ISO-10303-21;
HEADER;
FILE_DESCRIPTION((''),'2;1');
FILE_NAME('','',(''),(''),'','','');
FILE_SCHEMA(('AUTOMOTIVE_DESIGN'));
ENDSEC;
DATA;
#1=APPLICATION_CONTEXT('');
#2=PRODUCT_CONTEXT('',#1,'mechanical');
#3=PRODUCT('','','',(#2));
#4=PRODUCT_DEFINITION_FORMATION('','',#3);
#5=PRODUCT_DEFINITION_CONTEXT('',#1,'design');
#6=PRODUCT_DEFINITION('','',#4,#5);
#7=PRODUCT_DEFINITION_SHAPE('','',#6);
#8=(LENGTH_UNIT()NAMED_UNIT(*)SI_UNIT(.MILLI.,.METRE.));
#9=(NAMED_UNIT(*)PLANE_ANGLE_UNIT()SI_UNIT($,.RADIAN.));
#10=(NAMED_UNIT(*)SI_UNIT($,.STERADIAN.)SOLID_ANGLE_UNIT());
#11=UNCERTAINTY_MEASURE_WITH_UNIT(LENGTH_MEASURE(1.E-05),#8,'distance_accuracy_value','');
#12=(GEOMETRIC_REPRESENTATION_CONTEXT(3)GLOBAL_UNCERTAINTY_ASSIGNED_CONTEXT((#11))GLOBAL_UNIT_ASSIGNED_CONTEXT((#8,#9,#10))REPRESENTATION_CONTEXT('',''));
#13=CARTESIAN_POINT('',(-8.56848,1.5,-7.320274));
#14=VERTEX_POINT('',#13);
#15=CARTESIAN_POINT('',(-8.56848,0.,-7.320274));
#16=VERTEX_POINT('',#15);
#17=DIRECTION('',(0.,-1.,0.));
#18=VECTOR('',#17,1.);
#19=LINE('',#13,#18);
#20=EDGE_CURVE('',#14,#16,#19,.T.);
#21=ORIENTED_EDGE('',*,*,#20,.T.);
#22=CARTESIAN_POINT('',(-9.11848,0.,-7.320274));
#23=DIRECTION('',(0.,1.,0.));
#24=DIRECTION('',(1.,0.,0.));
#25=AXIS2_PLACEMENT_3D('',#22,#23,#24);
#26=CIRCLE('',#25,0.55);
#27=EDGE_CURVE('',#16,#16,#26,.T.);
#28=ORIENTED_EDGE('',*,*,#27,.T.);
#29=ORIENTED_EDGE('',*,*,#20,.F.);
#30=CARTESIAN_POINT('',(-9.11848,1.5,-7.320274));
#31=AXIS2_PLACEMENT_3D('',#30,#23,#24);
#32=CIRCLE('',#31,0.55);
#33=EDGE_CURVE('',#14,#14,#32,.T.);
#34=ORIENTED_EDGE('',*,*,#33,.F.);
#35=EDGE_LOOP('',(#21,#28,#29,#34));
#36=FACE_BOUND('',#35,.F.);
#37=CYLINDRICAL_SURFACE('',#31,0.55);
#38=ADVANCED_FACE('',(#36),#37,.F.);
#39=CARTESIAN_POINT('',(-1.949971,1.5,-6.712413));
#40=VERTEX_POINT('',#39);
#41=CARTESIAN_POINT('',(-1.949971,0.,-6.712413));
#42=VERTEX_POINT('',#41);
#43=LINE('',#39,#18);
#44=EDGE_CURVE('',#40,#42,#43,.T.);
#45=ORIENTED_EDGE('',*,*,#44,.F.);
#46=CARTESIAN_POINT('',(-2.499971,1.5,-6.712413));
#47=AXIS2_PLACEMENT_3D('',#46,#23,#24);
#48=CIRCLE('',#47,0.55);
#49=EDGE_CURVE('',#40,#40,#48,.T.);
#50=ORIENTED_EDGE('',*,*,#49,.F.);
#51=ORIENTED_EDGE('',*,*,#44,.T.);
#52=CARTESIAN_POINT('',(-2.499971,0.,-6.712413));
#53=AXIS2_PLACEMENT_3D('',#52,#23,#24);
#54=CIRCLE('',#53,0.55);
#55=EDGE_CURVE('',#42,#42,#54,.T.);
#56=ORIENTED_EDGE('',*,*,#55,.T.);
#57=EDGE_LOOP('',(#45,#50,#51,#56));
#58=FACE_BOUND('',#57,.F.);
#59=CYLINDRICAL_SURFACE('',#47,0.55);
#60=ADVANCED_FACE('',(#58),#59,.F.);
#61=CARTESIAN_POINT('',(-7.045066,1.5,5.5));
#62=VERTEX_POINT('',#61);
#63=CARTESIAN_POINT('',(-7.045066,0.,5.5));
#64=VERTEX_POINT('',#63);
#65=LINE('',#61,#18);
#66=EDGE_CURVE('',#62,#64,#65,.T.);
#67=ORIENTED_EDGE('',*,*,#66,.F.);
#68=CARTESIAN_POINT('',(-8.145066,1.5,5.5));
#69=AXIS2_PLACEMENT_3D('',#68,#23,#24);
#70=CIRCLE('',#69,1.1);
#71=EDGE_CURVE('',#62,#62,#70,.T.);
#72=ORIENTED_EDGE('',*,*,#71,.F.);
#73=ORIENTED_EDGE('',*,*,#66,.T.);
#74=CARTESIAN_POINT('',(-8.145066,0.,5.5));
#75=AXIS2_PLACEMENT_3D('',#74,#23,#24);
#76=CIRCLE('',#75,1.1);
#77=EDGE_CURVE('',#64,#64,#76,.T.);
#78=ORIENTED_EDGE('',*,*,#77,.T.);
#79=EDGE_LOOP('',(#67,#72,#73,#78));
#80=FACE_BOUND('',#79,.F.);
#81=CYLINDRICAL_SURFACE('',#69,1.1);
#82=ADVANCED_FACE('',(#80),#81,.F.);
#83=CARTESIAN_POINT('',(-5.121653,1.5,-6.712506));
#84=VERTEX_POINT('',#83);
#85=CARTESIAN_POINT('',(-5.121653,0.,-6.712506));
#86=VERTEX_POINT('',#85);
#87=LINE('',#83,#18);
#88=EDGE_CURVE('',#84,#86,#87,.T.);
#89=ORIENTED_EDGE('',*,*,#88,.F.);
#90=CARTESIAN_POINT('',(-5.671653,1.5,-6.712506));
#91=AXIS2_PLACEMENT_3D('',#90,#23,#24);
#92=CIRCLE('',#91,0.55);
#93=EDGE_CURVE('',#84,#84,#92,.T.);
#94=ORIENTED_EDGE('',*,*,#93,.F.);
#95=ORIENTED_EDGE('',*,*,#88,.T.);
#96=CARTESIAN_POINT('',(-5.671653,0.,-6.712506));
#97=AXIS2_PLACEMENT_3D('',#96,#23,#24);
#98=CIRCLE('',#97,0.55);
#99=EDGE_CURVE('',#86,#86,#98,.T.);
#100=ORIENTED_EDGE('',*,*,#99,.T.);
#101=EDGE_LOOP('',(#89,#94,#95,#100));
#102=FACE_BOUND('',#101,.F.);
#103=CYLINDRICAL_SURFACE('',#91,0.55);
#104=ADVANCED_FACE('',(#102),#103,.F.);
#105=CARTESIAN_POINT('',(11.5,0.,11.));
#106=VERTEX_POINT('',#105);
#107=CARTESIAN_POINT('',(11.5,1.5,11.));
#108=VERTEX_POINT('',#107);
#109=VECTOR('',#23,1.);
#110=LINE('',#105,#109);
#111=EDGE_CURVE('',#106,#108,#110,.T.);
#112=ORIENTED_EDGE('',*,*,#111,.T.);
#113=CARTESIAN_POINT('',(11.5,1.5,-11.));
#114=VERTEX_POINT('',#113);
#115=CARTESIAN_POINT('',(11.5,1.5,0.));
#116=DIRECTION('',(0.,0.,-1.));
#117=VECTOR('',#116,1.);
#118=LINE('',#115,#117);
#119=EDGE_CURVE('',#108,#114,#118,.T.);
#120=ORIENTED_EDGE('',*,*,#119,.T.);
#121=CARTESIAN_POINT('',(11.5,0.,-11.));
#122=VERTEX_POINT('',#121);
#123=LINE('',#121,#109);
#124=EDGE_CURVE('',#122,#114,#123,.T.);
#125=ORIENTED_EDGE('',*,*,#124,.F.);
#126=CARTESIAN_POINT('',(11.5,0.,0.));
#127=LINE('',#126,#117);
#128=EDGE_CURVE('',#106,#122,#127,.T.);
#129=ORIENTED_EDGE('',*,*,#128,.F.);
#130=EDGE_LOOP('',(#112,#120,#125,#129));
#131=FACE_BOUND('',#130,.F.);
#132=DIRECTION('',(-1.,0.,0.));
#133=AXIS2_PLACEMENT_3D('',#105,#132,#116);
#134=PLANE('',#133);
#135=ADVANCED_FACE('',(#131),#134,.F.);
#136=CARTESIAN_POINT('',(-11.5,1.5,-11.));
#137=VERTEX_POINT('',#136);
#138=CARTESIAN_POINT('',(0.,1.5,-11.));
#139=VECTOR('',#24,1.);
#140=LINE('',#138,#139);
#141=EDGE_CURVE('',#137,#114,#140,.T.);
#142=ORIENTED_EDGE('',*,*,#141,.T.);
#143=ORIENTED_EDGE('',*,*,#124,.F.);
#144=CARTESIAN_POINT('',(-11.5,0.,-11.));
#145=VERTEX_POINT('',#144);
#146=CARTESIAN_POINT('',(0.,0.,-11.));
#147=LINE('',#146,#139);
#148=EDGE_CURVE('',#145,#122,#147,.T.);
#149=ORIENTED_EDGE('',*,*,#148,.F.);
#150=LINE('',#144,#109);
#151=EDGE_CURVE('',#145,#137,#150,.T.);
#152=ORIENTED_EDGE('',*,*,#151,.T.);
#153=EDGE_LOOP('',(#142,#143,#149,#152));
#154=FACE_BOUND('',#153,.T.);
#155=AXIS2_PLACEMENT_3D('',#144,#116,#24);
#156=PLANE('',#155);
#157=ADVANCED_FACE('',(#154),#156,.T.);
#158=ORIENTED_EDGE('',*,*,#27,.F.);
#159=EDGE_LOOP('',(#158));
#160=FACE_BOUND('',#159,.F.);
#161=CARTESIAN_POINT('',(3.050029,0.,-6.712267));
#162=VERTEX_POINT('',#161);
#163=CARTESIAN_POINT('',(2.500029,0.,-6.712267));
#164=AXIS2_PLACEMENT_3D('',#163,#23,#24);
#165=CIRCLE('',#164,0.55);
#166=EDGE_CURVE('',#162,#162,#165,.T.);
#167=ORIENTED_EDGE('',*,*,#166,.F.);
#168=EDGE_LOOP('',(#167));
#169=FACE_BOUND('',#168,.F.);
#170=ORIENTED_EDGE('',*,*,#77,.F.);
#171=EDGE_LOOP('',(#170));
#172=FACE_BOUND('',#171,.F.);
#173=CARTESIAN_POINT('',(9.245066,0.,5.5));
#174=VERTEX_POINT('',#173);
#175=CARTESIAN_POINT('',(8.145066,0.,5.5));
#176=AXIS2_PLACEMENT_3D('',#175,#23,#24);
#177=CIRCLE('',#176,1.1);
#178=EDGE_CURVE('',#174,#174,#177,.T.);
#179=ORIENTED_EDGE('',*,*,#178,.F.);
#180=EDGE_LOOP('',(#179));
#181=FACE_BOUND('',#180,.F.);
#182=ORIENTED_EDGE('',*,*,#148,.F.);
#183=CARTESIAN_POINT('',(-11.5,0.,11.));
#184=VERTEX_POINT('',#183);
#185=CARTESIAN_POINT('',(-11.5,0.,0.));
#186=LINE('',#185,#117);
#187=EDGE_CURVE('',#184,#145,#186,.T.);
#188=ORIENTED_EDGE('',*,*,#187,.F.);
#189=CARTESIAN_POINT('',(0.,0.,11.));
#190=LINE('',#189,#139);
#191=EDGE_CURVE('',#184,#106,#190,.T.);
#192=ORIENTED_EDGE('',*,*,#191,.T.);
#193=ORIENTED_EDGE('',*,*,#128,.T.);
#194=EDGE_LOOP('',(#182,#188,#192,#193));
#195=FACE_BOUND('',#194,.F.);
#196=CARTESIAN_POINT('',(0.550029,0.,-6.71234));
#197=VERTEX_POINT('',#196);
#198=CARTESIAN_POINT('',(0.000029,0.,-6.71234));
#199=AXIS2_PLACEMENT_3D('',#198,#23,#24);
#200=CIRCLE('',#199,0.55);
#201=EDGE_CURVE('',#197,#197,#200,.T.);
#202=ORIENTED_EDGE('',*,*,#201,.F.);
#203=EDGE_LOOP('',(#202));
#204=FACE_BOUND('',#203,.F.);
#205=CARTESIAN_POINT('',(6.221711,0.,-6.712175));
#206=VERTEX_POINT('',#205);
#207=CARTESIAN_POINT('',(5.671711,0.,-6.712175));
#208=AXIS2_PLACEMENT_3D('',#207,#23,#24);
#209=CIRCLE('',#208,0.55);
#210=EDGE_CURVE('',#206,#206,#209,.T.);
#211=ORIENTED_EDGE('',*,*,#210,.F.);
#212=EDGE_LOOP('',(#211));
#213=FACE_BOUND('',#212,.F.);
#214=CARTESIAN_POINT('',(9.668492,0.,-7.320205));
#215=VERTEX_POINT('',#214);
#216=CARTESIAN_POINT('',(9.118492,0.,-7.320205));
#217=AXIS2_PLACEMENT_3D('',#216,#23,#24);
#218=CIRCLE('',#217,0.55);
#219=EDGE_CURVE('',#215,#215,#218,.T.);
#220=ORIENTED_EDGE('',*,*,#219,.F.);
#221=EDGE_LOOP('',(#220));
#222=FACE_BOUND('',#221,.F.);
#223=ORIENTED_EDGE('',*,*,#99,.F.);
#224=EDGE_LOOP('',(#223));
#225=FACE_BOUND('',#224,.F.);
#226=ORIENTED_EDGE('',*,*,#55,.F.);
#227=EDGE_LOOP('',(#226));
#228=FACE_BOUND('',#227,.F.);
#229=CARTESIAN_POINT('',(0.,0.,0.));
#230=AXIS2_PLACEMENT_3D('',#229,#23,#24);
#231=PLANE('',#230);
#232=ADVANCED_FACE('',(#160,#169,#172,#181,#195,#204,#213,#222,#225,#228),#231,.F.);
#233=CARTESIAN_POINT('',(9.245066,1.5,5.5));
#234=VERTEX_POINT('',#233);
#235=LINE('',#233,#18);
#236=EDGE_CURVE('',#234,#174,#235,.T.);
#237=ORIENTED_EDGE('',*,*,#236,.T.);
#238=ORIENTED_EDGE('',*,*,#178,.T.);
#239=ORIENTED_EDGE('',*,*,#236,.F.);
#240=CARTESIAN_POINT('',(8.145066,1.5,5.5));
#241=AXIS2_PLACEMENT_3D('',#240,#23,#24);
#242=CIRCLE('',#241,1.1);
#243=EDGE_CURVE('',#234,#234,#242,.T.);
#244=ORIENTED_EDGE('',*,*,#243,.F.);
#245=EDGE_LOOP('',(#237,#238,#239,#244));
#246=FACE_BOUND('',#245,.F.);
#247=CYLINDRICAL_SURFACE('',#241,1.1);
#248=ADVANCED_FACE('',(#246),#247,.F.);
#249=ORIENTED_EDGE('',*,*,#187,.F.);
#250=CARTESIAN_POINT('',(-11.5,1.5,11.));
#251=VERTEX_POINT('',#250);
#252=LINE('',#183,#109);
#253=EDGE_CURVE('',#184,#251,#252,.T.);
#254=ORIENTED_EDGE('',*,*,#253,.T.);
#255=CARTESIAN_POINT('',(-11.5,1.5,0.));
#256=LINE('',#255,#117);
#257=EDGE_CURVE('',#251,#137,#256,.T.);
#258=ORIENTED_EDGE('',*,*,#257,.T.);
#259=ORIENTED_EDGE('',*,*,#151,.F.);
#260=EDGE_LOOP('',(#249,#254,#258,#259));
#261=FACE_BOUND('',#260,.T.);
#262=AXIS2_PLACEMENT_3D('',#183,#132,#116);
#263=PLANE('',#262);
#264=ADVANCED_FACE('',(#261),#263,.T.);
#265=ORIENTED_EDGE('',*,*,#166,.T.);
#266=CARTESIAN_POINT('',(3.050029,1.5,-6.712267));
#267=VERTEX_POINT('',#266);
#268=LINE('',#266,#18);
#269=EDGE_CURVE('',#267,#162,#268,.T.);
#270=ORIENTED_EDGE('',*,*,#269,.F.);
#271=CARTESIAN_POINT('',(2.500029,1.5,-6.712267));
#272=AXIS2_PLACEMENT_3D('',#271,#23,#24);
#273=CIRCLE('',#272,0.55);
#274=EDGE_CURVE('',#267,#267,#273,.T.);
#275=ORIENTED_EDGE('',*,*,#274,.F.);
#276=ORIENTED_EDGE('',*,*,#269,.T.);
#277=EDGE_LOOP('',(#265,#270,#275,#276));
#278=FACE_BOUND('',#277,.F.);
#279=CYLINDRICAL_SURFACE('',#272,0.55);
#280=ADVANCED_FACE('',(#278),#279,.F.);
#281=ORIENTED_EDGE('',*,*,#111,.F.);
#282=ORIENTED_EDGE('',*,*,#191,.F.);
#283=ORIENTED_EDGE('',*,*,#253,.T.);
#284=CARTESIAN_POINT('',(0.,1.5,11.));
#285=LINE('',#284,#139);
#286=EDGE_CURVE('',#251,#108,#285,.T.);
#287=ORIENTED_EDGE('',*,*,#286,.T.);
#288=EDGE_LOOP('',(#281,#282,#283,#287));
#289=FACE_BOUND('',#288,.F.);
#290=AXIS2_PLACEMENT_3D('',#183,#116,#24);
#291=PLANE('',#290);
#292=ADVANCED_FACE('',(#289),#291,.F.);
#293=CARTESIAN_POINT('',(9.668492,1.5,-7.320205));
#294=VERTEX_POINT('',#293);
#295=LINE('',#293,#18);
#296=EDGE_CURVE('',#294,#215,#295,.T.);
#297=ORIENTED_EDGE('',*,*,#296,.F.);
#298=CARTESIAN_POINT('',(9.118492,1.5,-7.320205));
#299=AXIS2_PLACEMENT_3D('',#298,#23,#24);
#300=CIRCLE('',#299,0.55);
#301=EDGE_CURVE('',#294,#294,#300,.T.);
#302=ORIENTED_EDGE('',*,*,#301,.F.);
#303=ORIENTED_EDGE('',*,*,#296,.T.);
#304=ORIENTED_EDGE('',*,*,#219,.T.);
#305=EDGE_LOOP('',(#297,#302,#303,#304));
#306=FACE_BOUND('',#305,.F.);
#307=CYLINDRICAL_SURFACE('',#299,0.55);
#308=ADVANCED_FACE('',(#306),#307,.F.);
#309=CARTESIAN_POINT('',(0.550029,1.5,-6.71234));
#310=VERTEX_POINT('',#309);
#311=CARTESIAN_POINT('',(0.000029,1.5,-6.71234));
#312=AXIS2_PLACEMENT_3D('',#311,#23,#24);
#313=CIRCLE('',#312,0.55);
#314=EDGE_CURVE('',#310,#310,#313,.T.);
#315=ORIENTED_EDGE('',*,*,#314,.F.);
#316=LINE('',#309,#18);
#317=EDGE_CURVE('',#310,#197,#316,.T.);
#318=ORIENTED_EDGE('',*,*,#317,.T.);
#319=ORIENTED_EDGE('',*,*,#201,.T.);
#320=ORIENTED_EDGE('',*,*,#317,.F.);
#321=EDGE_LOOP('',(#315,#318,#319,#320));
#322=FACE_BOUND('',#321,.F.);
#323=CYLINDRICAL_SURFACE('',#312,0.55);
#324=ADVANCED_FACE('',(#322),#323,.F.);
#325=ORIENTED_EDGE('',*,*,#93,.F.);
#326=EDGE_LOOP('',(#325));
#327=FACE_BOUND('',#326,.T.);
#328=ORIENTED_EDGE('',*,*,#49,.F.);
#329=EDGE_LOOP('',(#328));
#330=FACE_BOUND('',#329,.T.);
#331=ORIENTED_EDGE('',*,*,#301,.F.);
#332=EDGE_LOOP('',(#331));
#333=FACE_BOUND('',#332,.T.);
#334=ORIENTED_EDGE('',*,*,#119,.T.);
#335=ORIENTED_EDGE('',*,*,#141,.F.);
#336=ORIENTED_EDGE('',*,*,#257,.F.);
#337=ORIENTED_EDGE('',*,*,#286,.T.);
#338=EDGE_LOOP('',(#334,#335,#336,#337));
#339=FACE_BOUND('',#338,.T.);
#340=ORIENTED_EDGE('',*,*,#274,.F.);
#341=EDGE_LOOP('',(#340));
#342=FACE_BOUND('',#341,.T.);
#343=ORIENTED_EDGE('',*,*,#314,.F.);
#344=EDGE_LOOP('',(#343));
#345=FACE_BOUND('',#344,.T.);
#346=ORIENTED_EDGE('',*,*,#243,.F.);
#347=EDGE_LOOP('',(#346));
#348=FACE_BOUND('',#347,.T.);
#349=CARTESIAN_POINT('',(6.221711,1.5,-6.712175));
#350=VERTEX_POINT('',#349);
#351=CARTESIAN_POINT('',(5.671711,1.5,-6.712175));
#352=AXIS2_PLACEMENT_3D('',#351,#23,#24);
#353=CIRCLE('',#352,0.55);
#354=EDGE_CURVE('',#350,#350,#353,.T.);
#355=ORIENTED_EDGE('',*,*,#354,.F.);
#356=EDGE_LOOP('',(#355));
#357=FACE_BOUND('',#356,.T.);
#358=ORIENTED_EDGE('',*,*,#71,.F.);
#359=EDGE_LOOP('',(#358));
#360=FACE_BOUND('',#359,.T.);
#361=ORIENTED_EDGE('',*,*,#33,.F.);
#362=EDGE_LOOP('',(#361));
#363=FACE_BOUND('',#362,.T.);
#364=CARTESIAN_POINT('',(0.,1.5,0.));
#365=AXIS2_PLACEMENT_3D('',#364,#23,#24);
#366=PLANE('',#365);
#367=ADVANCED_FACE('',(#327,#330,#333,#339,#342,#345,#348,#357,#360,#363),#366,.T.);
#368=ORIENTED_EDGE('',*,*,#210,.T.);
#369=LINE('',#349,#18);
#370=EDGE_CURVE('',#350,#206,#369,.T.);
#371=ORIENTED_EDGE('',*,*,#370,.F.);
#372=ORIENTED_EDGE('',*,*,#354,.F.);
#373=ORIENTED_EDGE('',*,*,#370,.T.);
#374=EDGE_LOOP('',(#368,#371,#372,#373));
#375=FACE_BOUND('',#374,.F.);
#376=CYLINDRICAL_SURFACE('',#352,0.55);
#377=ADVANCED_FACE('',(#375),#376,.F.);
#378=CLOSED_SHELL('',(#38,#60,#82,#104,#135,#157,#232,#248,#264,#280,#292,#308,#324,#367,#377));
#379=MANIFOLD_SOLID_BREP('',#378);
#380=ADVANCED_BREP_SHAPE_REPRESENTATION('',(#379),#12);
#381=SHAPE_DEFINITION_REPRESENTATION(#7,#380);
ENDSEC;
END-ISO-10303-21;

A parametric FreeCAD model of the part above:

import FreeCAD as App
import Part
import Sketcher


def add_polygon(sketch, points):
    """Adds a closed chain of lines whose ends are joined by coincident constraints."""
    first, n = sketch.GeometryCount, len(points)
    for a, b in zip(points, points[1:] + points[:1]):
        sketch.addGeometry(Part.LineSegment(App.Vector(*a, 0), App.Vector(*b, 0)), False)
    for i in range(n):
        sketch.addConstraint(Sketcher.Constraint("Coincident", first + i, 2, first + (i + 1) % n, 1))

doc = App.newDocument("Part")
params = doc.addObject("Spreadsheet::Sheet", "Params")
for row, (alias, value) in enumerate([
    ("sketch1_width", "23 mm"),
    ("sketch1_height", "22 mm"),
    ("pad1_length", "1.5 mm"),
    ("sketch2_diameter", "2.2 mm"),
    ("sketch2_diameter2", "1.1 mm"),
], start=1):
    params.set(f"A{row}", alias)
    params.set(f"B{row}", "=" + value)
    params.setAlias(f"B{row}", alias)

body = doc.addObject("PartDesign::Body", "Body")

sketch1 = doc.addObject("Sketcher::SketchObject", "Sketch")
body.addObject(sketch1)
sketch1.AttachmentSupport = (doc.XZ_Plane, [""])
sketch1.MapMode = "FlatFace"
add_polygon(sketch1, [(-12, -11), (-12, 11), (12, 11), (12, -11)])
sketch1.addConstraint(Sketcher.Constraint("Vertical", 0))
sketch1.addConstraint(Sketcher.Constraint("Horizontal", 1))
sketch1.addConstraint(Sketcher.Constraint("Vertical", 2))
sketch1.addConstraint(Sketcher.Constraint("Horizontal", 3))
sketch1.addConstraint(Sketcher.Constraint("Symmetric", 0, 2, 2, 2, -1, 1))
sketch1.addConstraint(Sketcher.Constraint("DistanceX", 1, 1, 1, 2, 23.0))
sketch1.addConstraint(Sketcher.Constraint("DistanceY", 0, 1, 0, 2, 22.0))
sketch1.setExpression("Constraints[9]", "Params.sketch1_width")
sketch1.setExpression("Constraints[10]", "Params.sketch1_height")
pad1 = doc.addObject("PartDesign::Pad", "Pad")
body.addObject(pad1)
pad1.Profile = sketch1
pad1.setExpression("Length", "Params.pad1_length")
pad1.Reversed = True

sketch2 = doc.addObject("Sketcher::SketchObject", "Sketch001")
body.addObject(sketch2)
sketch2.AttachmentSupport = (doc.XZ_Plane, [""])
sketch2.MapMode = "FlatFace"
sketch2.AttachmentOffset = App.Placement(App.Vector(0, 0, -1.5), App.Rotation())
sketch2.addGeometry(Part.Circle(App.Vector(-8.1, 5.5, 0), App.Vector(0, 0, 1), 1.1), False)
sketch2.addGeometry(Part.Circle(App.Vector(-9.1, -7.3, 0), App.Vector(0, 0, 1), 0.6), False)
sketch2.addGeometry(Part.Circle(App.Vector(-5.7, -6.7, 0), App.Vector(0, 0, 1), 0.6), False)
sketch2.addGeometry(Part.Circle(App.Vector(-2.5, -6.7, 0), App.Vector(0, 0, 1), 0.6), False)
sketch2.addGeometry(Part.Circle(App.Vector(0, -6.7, 0), App.Vector(0, 0, 1), 0.6), False)
sketch2.addGeometry(Part.Circle(App.Vector(2.5, -6.7, 0), App.Vector(0, 0, 1), 0.6), False)
sketch2.addGeometry(Part.Circle(App.Vector(5.7, -6.7, 0), App.Vector(0, 0, 1), 0.6), False)
sketch2.addGeometry(Part.Circle(App.Vector(9.1, -7.3, 0), App.Vector(0, 0, 1), 0.6), False)
sketch2.addGeometry(Part.Circle(App.Vector(8.1, 5.5, 0), App.Vector(0, 0, 1), 1.1), False)
sketch2.addConstraint(Sketcher.Constraint("Equal", 1, 2))
sketch2.addConstraint(Sketcher.Constraint("Equal", 2, 3))
sketch2.addConstraint(Sketcher.Constraint("Equal", 3, 4))
sketch2.addConstraint(Sketcher.Constraint("Equal", 4, 5))
sketch2.addConstraint(Sketcher.Constraint("Equal", 5, 6))
sketch2.addConstraint(Sketcher.Constraint("Equal", 6, 7))
sketch2.addConstraint(Sketcher.Constraint("Equal", 0, 8))
sketch2.addConstraint(Sketcher.Constraint("Symmetric", 0, 3, 8, 3, -2))
sketch2.addConstraint(Sketcher.Constraint("Diameter", 0, 2.2))
sketch2.addConstraint(Sketcher.Constraint("Diameter", 1, 1.1))
sketch2.addConstraint(Sketcher.Constraint("DistanceX", 3, 3, 5, 3, 5.0))
sketch2.addConstraint(Sketcher.Constraint("DistanceY", -1, 1, 0, 3, 5.5))
sketch2.addConstraint(Sketcher.Constraint("DistanceX", 3, 3, 4, 3, 2.5))
sketch2.addConstraint(Sketcher.Constraint("DistanceY", 1, 3, 6, 3, 0.608099))
sketch2.addConstraint(Sketcher.Constraint("DistanceY", 7, 3, 2, 3, 0.6077))
sketch2.addConstraint(Sketcher.Constraint("DistanceX", 1, 3, -1, 1, 9.11848))
sketch2.addConstraint(Sketcher.Constraint("DistanceX", 3, 3, -1, 1, 2.499971))
sketch2.addConstraint(Sketcher.Constraint("DistanceY", 4, 3, -1, 1, 6.71234))
sketch2.addConstraint(Sketcher.Constraint("DistanceX", -1, 1, 6, 3, 5.671711))
sketch2.addConstraint(Sketcher.Constraint("DistanceY", 1, 3, 2, 3, 0.607769))
sketch2.addConstraint(Sketcher.Constraint("DistanceY", 1, 3, 3, 3, 0.607861))
sketch2.addConstraint(Sketcher.Constraint("DistanceY", 2, 3, 5, 3, 0.000238))
sketch2.addConstraint(Sketcher.Constraint("DistanceX", 6, 3, 7, 3, 3.446781))
sketch2.addConstraint(Sketcher.Constraint("DistanceX", 0, 3, -1, 1, 8.145066))
sketch2.addConstraint(Sketcher.Constraint("DistanceY", 1, 3, -1, 1, 7.320274))
sketch2.addConstraint(Sketcher.Constraint("DistanceX", 2, 3, -1, 1, 5.671653))
sketch2.setExpression("Constraints[8]", "Params.sketch2_diameter")
sketch2.setExpression("Constraints[9]", "Params.sketch2_diameter2")
pocket1 = doc.addObject("PartDesign::Pocket", "Pocket")
body.addObject(pocket1)
pocket1.Profile = sketch2
pocket1.Type = "ThroughAll"
pocket1.Reversed = True

doc.recompute()
